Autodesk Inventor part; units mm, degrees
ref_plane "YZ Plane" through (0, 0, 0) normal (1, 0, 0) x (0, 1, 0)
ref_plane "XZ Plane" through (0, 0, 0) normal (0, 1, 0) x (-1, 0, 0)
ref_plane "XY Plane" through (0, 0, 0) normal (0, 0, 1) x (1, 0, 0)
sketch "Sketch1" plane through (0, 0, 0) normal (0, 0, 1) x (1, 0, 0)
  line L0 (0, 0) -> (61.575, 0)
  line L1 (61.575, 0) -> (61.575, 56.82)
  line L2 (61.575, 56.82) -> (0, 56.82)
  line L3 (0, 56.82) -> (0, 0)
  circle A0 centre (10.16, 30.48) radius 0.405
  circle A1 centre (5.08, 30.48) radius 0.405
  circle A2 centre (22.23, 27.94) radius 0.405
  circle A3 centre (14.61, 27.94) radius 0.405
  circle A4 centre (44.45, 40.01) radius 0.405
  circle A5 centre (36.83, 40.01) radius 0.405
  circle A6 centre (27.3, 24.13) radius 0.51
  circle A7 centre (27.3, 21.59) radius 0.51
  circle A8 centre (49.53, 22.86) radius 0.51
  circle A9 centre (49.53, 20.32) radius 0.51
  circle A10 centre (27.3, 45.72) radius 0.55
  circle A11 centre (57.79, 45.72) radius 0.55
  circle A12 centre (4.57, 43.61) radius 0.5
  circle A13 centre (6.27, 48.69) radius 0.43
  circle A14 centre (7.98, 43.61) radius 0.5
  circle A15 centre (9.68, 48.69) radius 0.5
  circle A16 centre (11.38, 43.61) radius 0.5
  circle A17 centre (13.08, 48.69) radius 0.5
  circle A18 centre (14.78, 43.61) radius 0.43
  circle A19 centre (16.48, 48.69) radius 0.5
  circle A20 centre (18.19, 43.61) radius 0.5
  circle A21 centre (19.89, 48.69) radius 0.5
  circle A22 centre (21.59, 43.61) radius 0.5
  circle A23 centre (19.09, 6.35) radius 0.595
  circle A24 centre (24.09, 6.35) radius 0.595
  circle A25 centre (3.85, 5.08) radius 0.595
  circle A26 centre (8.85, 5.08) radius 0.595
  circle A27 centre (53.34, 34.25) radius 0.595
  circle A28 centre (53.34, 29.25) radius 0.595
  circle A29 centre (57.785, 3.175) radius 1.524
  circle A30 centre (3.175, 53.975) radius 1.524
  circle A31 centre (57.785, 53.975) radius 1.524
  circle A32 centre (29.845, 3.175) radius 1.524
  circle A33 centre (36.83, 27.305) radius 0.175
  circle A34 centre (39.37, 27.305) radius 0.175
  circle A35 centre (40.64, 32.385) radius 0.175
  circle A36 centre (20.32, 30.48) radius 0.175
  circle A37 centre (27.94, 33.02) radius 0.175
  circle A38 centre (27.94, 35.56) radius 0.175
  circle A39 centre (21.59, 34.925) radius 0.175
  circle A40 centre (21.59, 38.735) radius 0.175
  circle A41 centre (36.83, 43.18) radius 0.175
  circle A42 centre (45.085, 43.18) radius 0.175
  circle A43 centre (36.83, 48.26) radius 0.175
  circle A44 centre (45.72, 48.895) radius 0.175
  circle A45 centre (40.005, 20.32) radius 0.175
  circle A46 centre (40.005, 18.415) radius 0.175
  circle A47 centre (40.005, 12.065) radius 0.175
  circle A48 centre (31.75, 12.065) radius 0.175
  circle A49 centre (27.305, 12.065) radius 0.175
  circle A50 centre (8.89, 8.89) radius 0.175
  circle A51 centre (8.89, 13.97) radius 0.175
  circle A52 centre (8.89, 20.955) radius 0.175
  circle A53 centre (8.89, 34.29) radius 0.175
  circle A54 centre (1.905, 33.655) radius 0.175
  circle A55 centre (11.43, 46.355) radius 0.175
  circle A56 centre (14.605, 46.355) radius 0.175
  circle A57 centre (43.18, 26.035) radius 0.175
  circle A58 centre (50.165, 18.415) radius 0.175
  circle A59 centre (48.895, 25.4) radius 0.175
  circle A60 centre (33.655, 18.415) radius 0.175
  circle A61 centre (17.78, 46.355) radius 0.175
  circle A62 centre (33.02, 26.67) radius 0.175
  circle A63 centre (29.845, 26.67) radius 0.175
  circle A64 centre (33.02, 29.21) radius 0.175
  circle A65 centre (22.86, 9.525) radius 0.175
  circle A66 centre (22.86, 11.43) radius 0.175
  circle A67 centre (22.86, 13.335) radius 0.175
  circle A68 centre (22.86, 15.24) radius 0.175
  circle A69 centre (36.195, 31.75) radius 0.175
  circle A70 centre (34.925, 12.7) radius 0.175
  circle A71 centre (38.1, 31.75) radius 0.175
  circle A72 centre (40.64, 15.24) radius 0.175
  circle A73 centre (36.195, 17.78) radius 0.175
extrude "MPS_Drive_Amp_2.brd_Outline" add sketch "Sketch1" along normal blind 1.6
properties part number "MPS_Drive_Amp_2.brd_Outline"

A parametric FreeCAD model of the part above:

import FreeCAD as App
import Part
import Sketcher
from FreeCAD import Vector
Q = App.Units.Quantity


def add_polygon(sketch, points):
    """Adds a closed chain of lines whose ends are joined by coincident constraints."""
    first, n = sketch.GeometryCount, len(points)
    for a, b in zip(points, points[1:] + points[:1]):
        sketch.addGeometry(Part.LineSegment(App.Vector(*a, 0), App.Vector(*b, 0)), False)
    for i in range(n):
        sketch.addConstraint(Sketcher.Constraint("Coincident", first + i, 2, first + (i + 1) % n, 1))

doc = App.newDocument("Part")
body = doc.addObject("PartDesign::Body", "Body")

sketch1 = body.newObject("Sketcher::SketchObject", "Sketch")
sketch1.AttachmentSupport = (doc.getObject("XY_Plane"), [""])
sketch1.MapMode = "FlatFace"
add_polygon(sketch1, [(0, 56.82), (0, 0), (61.58, 0), (61.58, 56.82)])
sketch1.addGeometry(Part.Circle(Vector(3.85, 5.08, 0), Vector(0, 0, 1), 0.59), False)
sketch1.addGeometry(Part.Circle(Vector(8.85, 5.08, 0), Vector(0, 0, 1), 0.59), False)
sketch1.addGeometry(Part.Circle(Vector(8.89, 8.89, 0), Vector(0, 0, 1), 0.17), False)
sketch1.addGeometry(Part.Circle(Vector(8.89, 13.97, 0), Vector(0, 0, 1), 0.17), False)
sketch1.addGeometry(Part.Circle(Vector(19.09, 6.35, 0), Vector(0, 0, 1), 0.59), False)
sketch1.addGeometry(Part.Circle(Vector(29.84, 3.17, 0), Vector(0, 0, 1), 1.52), False)
sketch1.addGeometry(Part.Circle(Vector(24.09, 6.35, 0), Vector(0, 0, 1), 0.59), False)
sketch1.addGeometry(Part.Circle(Vector(22.86, 9.53, 0), Vector(0, 0, 1), 0.17), False)
sketch1.addGeometry(Part.Circle(Vector(22.86, 11.43, 0), Vector(0, 0, 1), 0.17), False)
sketch1.addGeometry(Part.Circle(Vector(22.86, 13.34, 0), Vector(0, 0, 1), 0.17), False)
sketch1.addGeometry(Part.Circle(Vector(27.3, 12.06, 0), Vector(0, 0, 1), 0.17), False)
sketch1.addGeometry(Part.Circle(Vector(8.89, 20.95, 0), Vector(0, 0, 1), 0.17), False)
sketch1.addGeometry(Part.Circle(Vector(14.61, 27.94, 0), Vector(0, 0, 1), 0.41), False)
sketch1.addGeometry(Part.Circle(Vector(22.86, 15.24, 0), Vector(0, 0, 1), 0.17), False)
sketch1.addGeometry(Part.Circle(Vector(22.23, 27.94, 0), Vector(0, 0, 1), 0.41), False)
sketch1.addGeometry(Part.Circle(Vector(27.3, 21.59, 0), Vector(0, 0, 1), 0.51), False)
sketch1.addGeometry(Part.Circle(Vector(27.3, 24.13, 0), Vector(0, 0, 1), 0.51), False)
sketch1.addGeometry(Part.Circle(Vector(29.84, 26.67, 0), Vector(0, 0, 1), 0.17), False)
sketch1.addGeometry(Part.Circle(Vector(31.75, 12.06, 0), Vector(0, 0, 1), 0.17), False)
sketch1.addGeometry(Part.Circle(Vector(34.92, 12.7, 0), Vector(0, 0, 1), 0.17), False)
sketch1.addGeometry(Part.Circle(Vector(40.01, 12.06, 0), Vector(0, 0, 1), 0.17), False)
sketch1.addGeometry(Part.Circle(Vector(57.78, 3.17, 0), Vector(0, 0, 1), 1.52), False)
sketch1.addGeometry(Part.Circle(Vector(33.66, 18.41, 0), Vector(0, 0, 1), 0.17), False)
sketch1.addGeometry(Part.Circle(Vector(36.2, 17.78, 0), Vector(0, 0, 1), 0.17), False)
sketch1.addGeometry(Part.Circle(Vector(40.64, 15.24, 0), Vector(0, 0, 1), 0.17), False)
sketch1.addGeometry(Part.Circle(Vector(40.01, 18.41, 0), Vector(0, 0, 1), 0.17), False)
sketch1.addGeometry(Part.Circle(Vector(40.01, 20.32, 0), Vector(0, 0, 1), 0.17), False)
sketch1.addGeometry(Part.Circle(Vector(33.02, 26.67, 0), Vector(0, 0, 1), 0.17), False)
sketch1.addGeometry(Part.Circle(Vector(36.83, 27.3, 0), Vector(0, 0, 1), 0.17), False)
sketch1.addGeometry(Part.Circle(Vector(39.37, 27.3, 0), Vector(0, 0, 1), 0.17), False)
sketch1.addGeometry(Part.Circle(Vector(43.18, 26.04, 0), Vector(0, 0, 1), 0.17), False)
sketch1.addGeometry(Part.Circle(Vector(49.53, 20.32, 0), Vector(0, 0, 1), 0.51), False)
sketch1.addGeometry(Part.Circle(Vector(50.16, 18.41, 0), Vector(0, 0, 1), 0.17), False)
sketch1.addGeometry(Part.Circle(Vector(49.53, 22.86, 0), Vector(0, 0, 1), 0.51), False)
sketch1.addGeometry(Part.Circle(Vector(48.9, 25.4, 0), Vector(0, 0, 1), 0.17), False)
sketch1.addGeometry(Part.Circle(Vector(5.08, 30.48, 0), Vector(0, 0, 1), 0.41), False)
sketch1.addGeometry(Part.Circle(Vector(1.91, 33.66, 0), Vector(0, 0, 1), 0.17), False)
sketch1.addGeometry(Part.Circle(Vector(10.16, 30.48, 0), Vector(0, 0, 1), 0.41), False)
sketch1.addGeometry(Part.Circle(Vector(8.89, 34.29, 0), Vector(0, 0, 1), 0.17), False)
sketch1.addGeometry(Part.Circle(Vector(20.32, 30.48, 0), Vector(0, 0, 1), 0.17), False)
sketch1.addGeometry(Part.Circle(Vector(21.59, 34.92, 0), Vector(0, 0, 1), 0.17), False)
sketch1.addGeometry(Part.Circle(Vector(27.94, 33.02, 0), Vector(0, 0, 1), 0.17), False)
sketch1.addGeometry(Part.Circle(Vector(21.59, 38.73, 0), Vector(0, 0, 1), 0.17), False)
sketch1.addGeometry(Part.Circle(Vector(27.94, 35.56, 0), Vector(0, 0, 1), 0.17), False)
sketch1.addGeometry(Part.Circle(Vector(4.57, 43.61, 0), Vector(0, 0, 1), 0.5), False)
sketch1.addGeometry(Part.Circle(Vector(6.27, 48.69, 0), Vector(0, 0, 1), 0.43), False)
sketch1.addGeometry(Part.Circle(Vector(7.98, 43.61, 0), Vector(0, 0, 1), 0.5), False)
sketch1.addGeometry(Part.Circle(Vector(11.38, 43.61, 0), Vector(0, 0, 1), 0.5), False)
sketch1.addGeometry(Part.Circle(Vector(14.78, 43.61, 0), Vector(0, 0, 1), 0.43), False)
sketch1.addGeometry(Part.Circle(Vector(11.43, 46.35, 0), Vector(0, 0, 1), 0.17), False)
sketch1.addGeometry(Part.Circle(Vector(9.68, 48.69, 0), Vector(0, 0, 1), 0.5), False)
sketch1.addGeometry(Part.Circle(Vector(14.61, 46.35, 0), Vector(0, 0, 1), 0.17), False)
sketch1.addGeometry(Part.Circle(Vector(13.08, 48.69, 0), Vector(0, 0, 1), 0.5), False)
sketch1.addGeometry(Part.Circle(Vector(3.17, 53.98, 0), Vector(0, 0, 1), 1.52), False)
sketch1.addGeometry(Part.Circle(Vector(18.19, 43.61, 0), Vector(0, 0, 1), 0.5), False)
sketch1.addGeometry(Part.Circle(Vector(21.59, 43.61, 0), Vector(0, 0, 1), 0.5), False)
sketch1.addGeometry(Part.Circle(Vector(17.78, 46.35, 0), Vector(0, 0, 1), 0.17), False)
sketch1.addGeometry(Part.Circle(Vector(16.48, 48.69, 0), Vector(0, 0, 1), 0.5), False)
sketch1.addGeometry(Part.Circle(Vector(19.89, 48.69, 0), Vector(0, 0, 1), 0.5), False)
sketch1.addGeometry(Part.Circle(Vector(27.3, 45.72, 0), Vector(0, 0, 1), 0.55), False)
sketch1.addGeometry(Part.Circle(Vector(33.02, 29.21, 0), Vector(0, 0, 1), 0.17), False)
sketch1.addGeometry(Part.Circle(Vector(36.2, 31.75, 0), Vector(0, 0, 1), 0.17), False)
sketch1.addGeometry(Part.Circle(Vector(38.1, 31.75, 0), Vector(0, 0, 1), 0.17), False)
sketch1.addGeometry(Part.Circle(Vector(40.64, 32.38, 0), Vector(0, 0, 1), 0.17), False)
sketch1.addGeometry(Part.Circle(Vector(36.83, 40.01, 0), Vector(0, 0, 1), 0.41), False)
sketch1.addGeometry(Part.Circle(Vector(44.45, 40.01, 0), Vector(0, 0, 1), 0.41), False)
sketch1.addGeometry(Part.Circle(Vector(53.34, 29.25, 0), Vector(0, 0, 1), 0.59), False)
sketch1.addGeometry(Part.Circle(Vector(53.34, 34.25, 0), Vector(0, 0, 1), 0.59), False)
sketch1.addGeometry(Part.Circle(Vector(36.83, 43.18, 0), Vector(0, 0, 1), 0.17), False)
sketch1.addGeometry(Part.Circle(Vector(36.83, 48.26, 0), Vector(0, 0, 1), 0.17), False)
sketch1.addGeometry(Part.Circle(Vector(45.09, 43.18, 0), Vector(0, 0, 1), 0.17), False)
sketch1.addGeometry(Part.Circle(Vector(45.72, 48.9, 0), Vector(0, 0, 1), 0.17), False)
sketch1.addGeometry(Part.Circle(Vector(57.79, 45.72, 0), Vector(0, 0, 1), 0.55), False)
sketch1.addGeometry(Part.Circle(Vector(57.78, 53.98, 0), Vector(0, 0, 1), 1.52), False)
sketch1.addConstraint([
    Sketcher.Constraint("Vertical", 0),
    Sketcher.Constraint("Horizontal", 1),
    Sketcher.Constraint("Vertical", 2),
    Sketcher.Constraint("Horizontal", 3),
    Sketcher.Constraint("Coincident", 0, 2, -1, 1),
    Sketcher.Constraint("Equal", 4, 5),
    Sketcher.Constraint("Equal", 6, 7),
    Sketcher.Constraint("Equal", 5, 8),
    Sketcher.Constraint("Equal", 8, 10),
    Sketcher.Constraint("Equal", 7, 11),
    Sketcher.Constraint("Equal", 11, 12),
    Sketcher.Constraint("Equal", 12, 13),
    Sketcher.Constraint("Equal", 13, 14),
    Sketcher.Constraint("Equal", 14, 15),
    Sketcher.Constraint("Equal", 15, 17),
    Sketcher.Constraint("Equal", 16, 18),
    Sketcher.Constraint("Equal", 19, 20),
    Sketcher.Constraint("Equal", 17, 21),
    Sketcher.Constraint("Equal", 21, 22),
    Sketcher.Constraint("Equal", 22, 23),
    Sketcher.Constraint("Equal", 23, 24),
    Sketcher.Constraint("Equal", 9, 25),
    Sketcher.Constraint("Equal", 24, 26),
    Sketcher.Constraint("Equal", 26, 27),
    Sketcher.Constraint("Equal", 27, 28),
    Sketcher.Constraint("Equal", 28, 29),
    Sketcher.Constraint("Equal", 29, 30),
    Sketcher.Constraint("Equal", 30, 31),
    Sketcher.Constraint("Equal", 31, 32),
    Sketcher.Constraint("Equal", 32, 33),
    Sketcher.Constraint("Equal", 33, 34),
    Sketcher.Constraint("Equal", 20, 35),
    Sketcher.Constraint("Equal", 34, 36),
    Sketcher.Constraint("Equal", 35, 37),
    Sketcher.Constraint("Equal", 36, 38),
    Sketcher.Constraint("Equal", 18, 39),
    Sketcher.Constraint("Equal", 38, 40),
    Sketcher.Constraint("Equal", 39, 41),
    Sketcher.Constraint("Equal", 40, 42),
    Sketcher.Constraint("Equal", 42, 43),
    Sketcher.Constraint("Equal", 43, 44),
    Sketcher.Constraint("Equal", 44, 45),
    Sketcher.Constraint("Equal", 45, 46),
    Sketcher.Constraint("Equal", 46, 47),
    Sketcher.Constraint("Equal", 48, 50),
    Sketcher.Constraint("Equal", 50, 51),
    Sketcher.Constraint("Equal", 49, 52),
    Sketcher.Constraint("Equal", 47, 53),
    Sketcher.Constraint("Equal", 51, 54),
    Sketcher.Constraint("Equal", 53, 55),
    Sketcher.Constraint("Equal", 54, 56),
    Sketcher.Constraint("Equal", 25, 57),
    Sketcher.Constraint("Equal", 56, 58),
    Sketcher.Constraint("Equal", 58, 59),
    Sketcher.Constraint("Equal", 55, 60),
    Sketcher.Constraint("Equal", 59, 61),
    Sketcher.Constraint("Equal", 61, 62),
    Sketcher.Constraint("Equal", 60, 64),
    Sketcher.Constraint("Equal", 64, 65),
    Sketcher.Constraint("Equal", 65, 66),
    Sketcher.Constraint("Equal", 66, 67),
    Sketcher.Constraint("Equal", 41, 68),
    Sketcher.Constraint("Equal", 68, 69),
    Sketcher.Constraint("Equal", 10, 70),
    Sketcher.Constraint("Equal", 70, 71),
    Sketcher.Constraint("Equal", 67, 72),
    Sketcher.Constraint("Equal", 72, 73),
    Sketcher.Constraint("Equal", 73, 74),
    Sketcher.Constraint("Equal", 74, 75),
    Sketcher.Constraint("Equal", 63, 76),
    Sketcher.Constraint("Equal", 57, 77),
    Sketcher.Constraint("Horizontal", 4, 3, 5, 3),
    Sketcher.Constraint("Horizontal", 8, 3, 10, 3),
    Sketcher.Constraint("Horizontal", 16, 3, 18, 3),
    Sketcher.Constraint("Horizontal", 14, 3, 22, 3),
    Sketcher.Constraint("Horizontal", 22, 3, 24, 3),
    Sketcher.Constraint("Horizontal", 9, 3, 25, 3),
    Sketcher.Constraint("Horizontal", 17, 3, 28, 3),
    Sketcher.Constraint("Horizontal", 26, 3, 29, 3),
    Sketcher.Constraint("Horizontal", 21, 3, 31, 3),
    Sketcher.Constraint("Horizontal", 32, 3, 33, 3),
    Sketcher.Constraint("Horizontal", 30, 3, 35, 3),
    Sketcher.Constraint("Horizontal", 29, 3, 36, 3),
    Sketcher.Constraint("Horizontal", 39, 3, 41, 3),
    Sketcher.Constraint("Horizontal", 41, 3, 43, 3),
    Sketcher.Constraint("Horizontal", 48, 3, 50, 3),
    Sketcher.Constraint("Horizontal", 50, 3, 51, 3),
    Sketcher.Constraint("Horizontal", 51, 3, 52, 3),
    Sketcher.Constraint("Horizontal", 49, 3, 54, 3),
    Sketcher.Constraint("Horizontal", 53, 3, 55, 3),
    Sketcher.Constraint("Horizontal", 54, 3, 56, 3),
    Sketcher.Constraint("Horizontal", 52, 3, 58, 3),
    Sketcher.Constraint("Horizontal", 58, 3, 59, 3),
    Sketcher.Constraint("Horizontal", 55, 3, 60, 3),
    Sketcher.Constraint("Horizontal", 56, 3, 61, 3),
    Sketcher.Constraint("Horizontal", 61, 3, 62, 3),
    Sketcher.Constraint("Horizontal", 65, 3, 66, 3),
    Sketcher.Constraint("Horizontal", 68, 3, 69, 3),
    Sketcher.Constraint("Horizontal", 72, 3, 74, 3),
    Sketcher.Constraint("Horizontal", 63, 3, 76, 3),
    Sketcher.Constraint("Horizontal", 57, 3, 77, 3),
    Sketcher.Constraint("Vertical", 6, 3, 7, 3),
    Sketcher.Constraint("Vertical", 11, 3, 12, 3),
    Sketcher.Constraint("Vertical", 12, 3, 13, 3),
    Sketcher.Constraint("Vertical", 7, 3, 15, 3),
    Sketcher.Constraint("Vertical", 13, 3, 17, 3),
    Sketcher.Constraint("Vertical", 19, 3, 20, 3),
    Sketcher.Constraint("Vertical", 9, 3, 21, 3),
    Sketcher.Constraint("Vertical", 24, 3, 29, 3),
    Sketcher.Constraint("Vertical", 29, 3, 30, 3),
    Sketcher.Constraint("Vertical", 35, 3, 37, 3),
    Sketcher.Constraint("Vertical", 15, 3, 42, 3),
    Sketcher.Constraint("Vertical", 44, 3, 46, 3),
    Sketcher.Constraint("Vertical", 45, 3, 47, 3),
    Sketcher.Constraint("Vertical", 46, 3, 59, 3),
    Sketcher.Constraint("Vertical", 20, 3, 63, 3),
    Sketcher.Constraint("Vertical", 31, 3, 64, 3),
    Sketcher.Constraint("Vertical", 27, 3, 65, 3),
    Sketcher.Constraint("Vertical", 28, 3, 67, 3),
    Sketcher.Constraint("Vertical", 32, 3, 68, 3),
    Sketcher.Constraint("Vertical", 70, 3, 71, 3),
    Sketcher.Constraint("Vertical", 68, 3, 72, 3),
    Sketcher.Constraint("Vertical", 72, 3, 73, 3),
    Sketcher.Constraint("Vertical", 25, 3, 77, 3),
    Sketcher.Constraint("Diameter", 9, Q("0.12 in")),
    Sketcher.Constraint("DistanceY", -1, 1, 38, 3, Q("1 in")),
    Sketcher.Constraint("Diameter", 16, Q("0.0319 in")),
    Sketcher.Constraint("Diameter", 63, Q("0.0433 in")),
    Sketcher.Constraint("DistanceY", -1, 1, 4, 3, Q("0.2 in")),
    Sketcher.Constraint("DistanceX", -1, 1, 11, 3, Q("0.9 in")),
    Sketcher.Constraint("DistanceY", -1, 1, 16, 3, Q("1.1 in")),
    Sketcher.Constraint("DistanceY", -1, 1, 17, 3, Q("0.6 in")),
    Sketcher.Constraint("DistanceY", -1, 1, 23, 3, Q("0.5 in")),
    Sketcher.Constraint("DistanceY", -1, 1, 27, 3, Q("0.7 in")),
    Sketcher.Constraint("DistanceX", -1, 1, 28, 3, Q("1.6 in")),
    Sketcher.Constraint("DistanceY", -1, 1, 30, 3, Q("0.8 in")),
    Sketcher.Constraint("DistanceX", -1, 1, 31, 3, Q("1.3 in")),
    Sketcher.Constraint("DistanceX", -1, 1, 34, 3, Q("1.7 in")),
    Sketcher.Constraint("DistanceY", -1, 1, 37, 3, Q("0.9 in")),
    Sketcher.Constraint("DistanceX", -1, 1, 39, 3, Q("0.2 in")),
    Sketcher.Constraint("DistanceY", -1, 1, 39, 3, Q("1.2 in")),
    Sketcher.Constraint("DistanceX", -1, 1, 41, 3, Q("0.4 in")),
    Sketcher.Constraint("DistanceX", -1, 1, 43, 3, Q("0.8 in")),
    Sketcher.Constraint("DistanceX", -1, 1, 45, 3, Q("1.1 in")),
    Sketcher.Constraint("DistanceY", -1, 1, 45, 3, Q("1.3 in")),
    Sketcher.Constraint("DistanceY", -1, 1, 47, 3, Q("1.4 in")),
    Sketcher.Constraint("DistanceX", -1, 1, 60, 3, Q("0.7 in")),
    Sketcher.Constraint("DistanceY", -1, 1, 63, 3, Q("1.8 in")),
    Sketcher.Constraint("DistanceX", -1, 1, 66, 3, Q("1.5 in")),
    Sketcher.Constraint("DistanceX", -1, 1, 70, 3, Q("2.1 in")),
    Sketcher.Constraint("DistanceY", -1, 1, 72, 3, Q("1.7 in")),
    Sketcher.Constraint("DistanceY", -1, 1, 73, 3, Q("1.9 in")),
    Sketcher.Constraint("DistanceX", -1, 1, 75, 3, Q("1.8 in")),
    Sketcher.Constraint("Diameter", 4, 1.19),
    Sketcher.Constraint("Diameter", 6, 0.35),
    Sketcher.Constraint("Diameter", 19, 1.02),
    Sketcher.Constraint("Diameter", 48, 1.0),
    Sketcher.Constraint("Diameter", 49, 0.86),
    Sketcher.Constraint("DistanceY", 0, 2, 0, 1, Q("2.237 in")),
    Sketcher.Constraint("DistanceX", -1, 1, 6, 3, Q("0.35 in")),
    Sketcher.Constraint("DistanceY", -1, 1, 6, 3, Q("0.35 in")),
    Sketcher.Constraint("DistanceY", -1, 1, 7, 3, Q("0.55 in")),
    Sketcher.Constraint("DistanceY", -1, 1, 8, 3, Q("0.25 in")),
    Sketcher.Constraint("DistanceY", -1, 1, 12, 3, Q("0.45 in")),
    Sketcher.Constraint("DistanceY", -1, 1, 19, 3, Q("0.85 in")),
    Sketcher.Constraint("DistanceY", -1, 1, 20, 3, Q("0.95 in")),
    Sketcher.Constraint("DistanceY", -1, 1, 21, 3, Q("1.05 in")),
    Sketcher.Constraint("DistanceX", -1, 1, 22, 3, Q("1.25 in")),
    Sketcher.Constraint("DistanceX", -1, 1, 32, 3, Q("1.45 in")),
    Sketcher.Constraint("DistanceX", -1, 1, 33, 3, Q("1.55 in")),
    Sketcher.Constraint("DistanceX", -1, 1, 35, 3, Q("1.95 in")),
    Sketcher.Constraint("DistanceY", -1, 1, 42, 3, Q("1.35 in")),
    Sketcher.Constraint("DistanceX", -1, 1, 44, 3, Q("0.85 in")),
    Sketcher.Constraint("DistanceX", -1, 1, 53, 3, Q("0.45 in")),
    Sketcher.Constraint("DistanceY", -1, 1, 64, 3, Q("1.15 in")),
    Sketcher.Constraint("DistanceY", -1, 1, 65, 3, Q("1.25 in")),
    Sketcher.Constraint("DistanceX", -1, 1, 69, 3, Q("1.75 in")),
    Sketcher.Constraint("DistanceX", -1, 1, 9, 3, Q("1.175 in")),
    Sketcher.Constraint("DistanceY", -1, 1, 9, 3, Q("0.125 in")),
    Sketcher.Constraint("DistanceY", -1, 1, 11, 3, Q("0.375 in")),
    Sketcher.Constraint("DistanceY", -1, 1, 13, 3, Q("0.525 in")),
    Sketcher.Constraint("DistanceX", -1, 1, 14, 3, Q("1.075 in")),
    Sketcher.Constraint("DistanceY", -1, 1, 14, 3, Q("0.475 in")),
    Sketcher.Constraint("DistanceY", -1, 1, 15, 3, Q("0.825 in")),
    Sketcher.Constraint("DistanceX", -1, 1, 23, 3, Q("1.375 in")),
    Sketcher.Constraint("DistanceX", -1, 1, 24, 3, Q("1.575 in")),
    Sketcher.Constraint("DistanceX", -1, 1, 25, 3, Q("2.275 in")),
    Sketcher.Constraint("DistanceX", -1, 1, 26, 3, Q("1.325 in")),
    Sketcher.Constraint("DistanceY", -1, 1, 26, 3, Q("0.725 in")),
    Sketcher.Constraint("DistanceX", -1, 1, 27, 3, Q("1.425 in")),
    Sketcher.Constraint("DistanceY", -1, 1, 32, 3, Q("1.075 in")),
    Sketcher.Constraint("DistanceY", -1, 1, 34, 3, Q("1.025 in")),
    Sketcher.Constraint("DistanceX", -1, 1, 36, 3, Q("1.975 in")),
    Sketcher.Constraint("DistanceX", -1, 1, 38, 3, Q("1.925 in")),
    Sketcher.Constraint("DistanceX", -1, 1, 40, 3, Q("0.075 in")),
    Sketcher.Constraint("DistanceY", -1, 1, 40, 3, Q("1.325 in")),
    Sketcher.Constraint("DistanceY", -1, 1, 44, 3, Q("1.375 in")),
    Sketcher.Constraint("DistanceY", -1, 1, 46, 3, Q("1.525 in")),
    Sketcher.Constraint("DistanceY", -1, 1, 53, 3, Q("1.825 in")),
    Sketcher.Constraint("DistanceX", -1, 1, 55, 3, Q("0.575 in")),
    Sketcher.Constraint("DistanceX", -1, 1, 57, 3, Q("0.125 in")),
    Sketcher.Constraint("DistanceY", -1, 1, 57, 3, Q("2.125 in")),
    Sketcher.Constraint("DistanceY", -1, 1, 67, 3, Q("1.275 in")),
    Sketcher.Constraint("DistanceX", -1, 1, 74, 3, Q("1.775 in")),
    Sketcher.Constraint("DistanceY", -1, 1, 75, 3, Q("1.925 in")),
    Sketcher.Constraint("DistanceX", 1, 1, 1, 2, 61.575),
    Sketcher.Constraint("DistanceX", -1, 1, 16, 3, Q("0.5752 in")),
    Sketcher.Constraint("DistanceX", -1, 1, 18, 3, Q("0.8752 in")),
    Sketcher.Constraint("DistanceX", -1, 1, 19, 3, Q("1.0748 in")),
    Sketcher.Constraint("DistanceX", -1, 1, 52, 3, Q("0.5819 in")),
    Sketcher.Constraint("DistanceX", -1, 1, 54, 3, Q("0.3811 in")),
    Sketcher.Constraint("DistanceY", -1, 1, 68, 3, Q("1.5752 in")),
    Sketcher.Constraint("DistanceX", -1, 1, 76, 3, Q("2.2752 in")),
    Sketcher.Constraint("DistanceX", -1, 1, 4, 3, 3.85),
    Sketcher.Constraint("DistanceX", -1, 1, 5, 3, 8.85),
    Sketcher.Constraint("DistanceX", -1, 1, 8, 3, 19.09),
    Sketcher.Constraint("DistanceX", -1, 1, 10, 3, 24.09),
    Sketcher.Constraint("DistanceX", -1, 1, 48, 3, 4.57),
    Sketcher.Constraint("DistanceY", -1, 1, 48, 3, 43.61),
    Sketcher.Constraint("DistanceX", -1, 1, 49, 3, 6.27),
    Sketcher.Constraint("DistanceY", -1, 1, 49, 3, 48.69),
    Sketcher.Constraint("DistanceX", -1, 1, 50, 3, 7.98),
    Sketcher.Constraint("DistanceX", -1, 1, 51, 3, 11.38),
    Sketcher.Constraint("DistanceX", -1, 1, 56, 3, 13.08),
    Sketcher.Constraint("DistanceX", -1, 1, 58, 3, 18.19),
    Sketcher.Constraint("DistanceX", -1, 1, 61, 3, 16.48),
    Sketcher.Constraint("DistanceX", -1, 1, 62, 3, 19.89),
    Sketcher.Constraint("DistanceY", -1, 1, 70, 3, 29.25),
    Sketcher.Constraint("DistanceY", -1, 1, 71, 3, 34.25),
])
pad1 = body.newObject("PartDesign::Pad", "Pad")
pad1.Profile = sketch1
pad1.Length = Q("0.0629921 in")

doc.recompute()
